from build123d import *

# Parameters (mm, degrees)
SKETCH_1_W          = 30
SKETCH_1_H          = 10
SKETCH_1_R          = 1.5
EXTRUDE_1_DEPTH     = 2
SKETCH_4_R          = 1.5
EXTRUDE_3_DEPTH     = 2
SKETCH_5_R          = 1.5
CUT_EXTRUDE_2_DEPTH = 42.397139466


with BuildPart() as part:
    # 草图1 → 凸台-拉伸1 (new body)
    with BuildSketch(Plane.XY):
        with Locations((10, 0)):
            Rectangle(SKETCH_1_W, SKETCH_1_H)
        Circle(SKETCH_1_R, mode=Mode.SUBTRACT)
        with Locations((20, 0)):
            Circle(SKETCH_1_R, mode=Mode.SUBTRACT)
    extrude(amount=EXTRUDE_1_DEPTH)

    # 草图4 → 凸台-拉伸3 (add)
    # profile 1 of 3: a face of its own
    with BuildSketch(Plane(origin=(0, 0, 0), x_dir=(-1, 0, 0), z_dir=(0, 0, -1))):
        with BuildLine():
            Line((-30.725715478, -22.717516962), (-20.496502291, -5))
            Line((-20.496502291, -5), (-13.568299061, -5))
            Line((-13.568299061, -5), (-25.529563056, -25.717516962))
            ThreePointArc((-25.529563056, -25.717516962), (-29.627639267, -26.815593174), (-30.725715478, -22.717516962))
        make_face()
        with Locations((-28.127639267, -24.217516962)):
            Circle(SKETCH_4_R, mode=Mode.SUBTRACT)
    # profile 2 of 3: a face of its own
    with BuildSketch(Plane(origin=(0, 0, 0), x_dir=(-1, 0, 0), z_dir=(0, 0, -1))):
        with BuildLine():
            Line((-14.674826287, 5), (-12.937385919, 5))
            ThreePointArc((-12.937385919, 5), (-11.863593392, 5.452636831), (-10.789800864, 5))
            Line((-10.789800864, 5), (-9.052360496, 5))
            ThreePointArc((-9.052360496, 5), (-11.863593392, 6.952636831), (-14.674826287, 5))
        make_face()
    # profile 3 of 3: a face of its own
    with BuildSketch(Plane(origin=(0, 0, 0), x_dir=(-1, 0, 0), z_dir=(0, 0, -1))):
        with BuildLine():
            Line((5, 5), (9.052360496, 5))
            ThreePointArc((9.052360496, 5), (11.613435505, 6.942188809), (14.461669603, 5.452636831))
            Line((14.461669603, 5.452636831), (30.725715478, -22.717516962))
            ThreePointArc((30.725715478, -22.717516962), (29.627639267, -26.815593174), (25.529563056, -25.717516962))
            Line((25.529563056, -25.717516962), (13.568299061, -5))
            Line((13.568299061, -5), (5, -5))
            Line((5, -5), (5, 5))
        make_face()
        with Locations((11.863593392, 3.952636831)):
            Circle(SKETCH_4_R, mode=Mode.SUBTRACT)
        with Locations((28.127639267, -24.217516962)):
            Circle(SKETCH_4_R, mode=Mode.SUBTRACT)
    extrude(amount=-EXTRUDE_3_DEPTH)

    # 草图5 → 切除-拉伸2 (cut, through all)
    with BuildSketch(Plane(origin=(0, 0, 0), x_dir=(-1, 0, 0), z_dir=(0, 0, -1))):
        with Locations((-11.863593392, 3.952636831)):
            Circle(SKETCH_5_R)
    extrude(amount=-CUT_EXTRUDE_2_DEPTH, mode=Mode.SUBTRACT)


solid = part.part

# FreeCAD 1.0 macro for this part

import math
import FreeCAD as App
import Part
import Sketcher

V = App.Vector
Q = App.Units.Quantity


def add_polygon(sketch, points):
    """Adds a closed chain of lines whose ends are joined by coincident constraints."""
    first, n = sketch.GeometryCount, len(points)
    for a, b in zip(points, points[1:] + points[:1]):
        sketch.addGeometry(Part.LineSegment(App.Vector(*a, 0), App.Vector(*b, 0)), False)
    for i in range(n):
        sketch.addConstraint(Sketcher.Constraint("Coincident", first + i, 2, first + (i + 1) % n, 1))

doc = App.newDocument("Part")
body = doc.addObject("PartDesign::Body", "Body")

# Sketch on XY plane
sketch1 = body.newObject("Sketcher::SketchObject", "Sketch")
sketch1.AttachmentSupport = (doc.getObject("XY_Plane"), [""])
sketch1.MapMode = "FlatFace"
add_polygon(sketch1, [(-5, 5), (-5, -5), (25, -5), (25, 5)])  # lines 0-3
sketch1.addGeometry(Part.Circle(V(0, 0, 0), V(0, 0, 1), 1.5), False)  # 4
sketch1.addGeometry(Part.Circle(V(20, 0, 0), V(0, 0, 1), 1.5), False)  # 5
sketch1.addConstraint([
    Sketcher.Constraint("Vertical", 0),
    Sketcher.Constraint("Horizontal", 1),
    Sketcher.Constraint("Vertical", 2),
    Sketcher.Constraint("Horizontal", 3),
    Sketcher.Constraint("Coincident", 4, 3, -1, 1),
    Sketcher.Constraint("Equal", 4, 5),
    Sketcher.Constraint("PointOnObject", 5, 3, -1),
    Sketcher.Constraint("Diameter", 4, 3.0),
    Sketcher.Constraint("DistanceX", 1, 1, 1, 2, 30.0),
    Sketcher.Constraint("DistanceY", 0, 2, 0, 1, 10.0),
    Sketcher.Constraint("DistanceX", -1, 1, 5, 3, 20.0),
    Sketcher.Constraint("DistanceX", 0, 2, -1, 1, 5.0),
    Sketcher.Constraint("DistanceY", 0, 2, -1, 1, 5.0),
])
pad1 = body.newObject("PartDesign::Pad", "Pad")
pad1.Profile = sketch1
pad1.Length = 2

# Sketch on XY plane
sketch2 = body.newObject("Sketcher::SketchObject", "Sketch001")
sketch2.AttachmentSupport = (doc.getObject("XY_Plane"), [""])
sketch2.MapMode = "FlatFace"
sketch2.addGeometry([
    Part.LineSegment(V(20.5, -5, 0), V(30.7, -22.7, 0)),  # 0
    Part.ArcOfCircle(Part.Circle(V(28.1, -24.2, 0), V(0, 0, 1), 3), math.radians(-150), math.radians(30)),  # 1
    Part.LineSegment(V(25.5, -25.7, 0), V(13.6, -5, 0)),  # 2
    Part.LineSegment(V(13.6, -5, 0), V(20.5, -5, 0)),  # 3
    Part.Circle(V(28.1, -24.2, 0), V(0, 0, 1), 1.5),  # 4
    Part.LineSegment(V(14.7, 5, 0), V(12.9, 5, 0)),  # 5
    Part.ArcOfCircle(Part.Circle(V(11.9, 4, 0), V(0, 0, 1), 1.5), math.radians(44), math.radians(136)),  # 6
    Part.LineSegment(V(10.8, 5, 0), V(9.1, 5, 0)),  # 7
    Part.ArcOfCircle(Part.Circle(V(11.9, 4, 0), V(0, 0, 1), 3), math.radians(20), math.radians(160)),  # 8
    Part.LineSegment(V(-9.1, 5, 0), V(-5, 5, 0)),  # 9
    Part.LineSegment(V(-5, 5, 0), V(-5, -5, 0)),  # 10
    Part.LineSegment(V(-5, -5, 0), V(-13.6, -5, 0)),  # 11
    Part.LineSegment(V(-13.6, -5, 0), V(-25.5, -25.7, 0)),  # 12
    Part.ArcOfCircle(Part.Circle(V(-28.1, -24.2, 0), V(0, 0, 1), 3), math.radians(150), math.radians(330)),  # 13
    Part.LineSegment(V(-30.7, -22.7, 0), V(-14.5, 5.5, 0)),  # 14
    Part.ArcOfCircle(Part.Circle(V(-11.9, 4, 0), V(0, 0, 1), 3), math.radians(20), math.radians(150)),  # 15
    Part.Circle(V(-28.1, -24.2, 0), V(0, 0, 1), 1.5),  # 16
    Part.Circle(V(-11.9, 4, 0), V(0, 0, 1), 1.5),  # 17
], False)
sketch2.addConstraint([
    Sketcher.Constraint("Tangent", 0, 2, 1, 2),
    Sketcher.Constraint("Tangent", 1, 1, 2, 1),
    Sketcher.Constraint("Coincident", 2, 2, 3, 1),
    Sketcher.Constraint("Coincident", 3, 2, 0, 1),
    Sketcher.Constraint("Coincident", 5, 2, 6, 1),
    Sketcher.Constraint("Coincident", 6, 2, 7, 1),
    Sketcher.Constraint("Coincident", 7, 2, 8, 2),
    Sketcher.Constraint("Coincident", 8, 1, 5, 1),
    Sketcher.Constraint("Coincident", 9, 2, 10, 1),
    Sketcher.Constraint("Coincident", 10, 2, 11, 1),
    Sketcher.Constraint("Coincident", 11, 2, 12, 1),
    Sketcher.Constraint("Tangent", 12, 2, 13, 2),
    Sketcher.Constraint("Tangent", 13, 1, 14, 1),
    Sketcher.Constraint("Tangent", 14, 2, 15, 2),
    Sketcher.Constraint("Coincident", 15, 1, 9, 1),
    Sketcher.Constraint("Horizontal", 3),
    Sketcher.Constraint("Horizontal", 5),
    Sketcher.Constraint("Horizontal", 7),
    Sketcher.Constraint("Horizontal", 9),
    Sketcher.Constraint("Vertical", 10),
    Sketcher.Constraint("Horizontal", 11),
    Sketcher.Constraint("Coincident", 4, 3, 1, 3),
    Sketcher.Constraint("Coincident", 8, 3, 6, 3),
    Sketcher.Constraint("Coincident", 16, 3, 13, 3),
    Sketcher.Constraint("Coincident", 17, 3, 15, 3),
    Sketcher.Constraint("Equal", 4, 6),
    Sketcher.Constraint("Equal", 1, 8),
    Sketcher.Constraint("Equal", 8, 13),
    Sketcher.Constraint("Equal", 13, 15),
    Sketcher.Constraint("Equal", 6, 16),
    Sketcher.Constraint("Equal", 16, 17),
    Sketcher.Constraint("Symmetric", 1, 3, 13, 3, -2),
    Sketcher.Constraint("Symmetric", 6, 3, 15, 3, -2),
    Sketcher.Constraint("Symmetric", 2, 2, 11, 2, -2),
    Sketcher.Constraint("Parallel", 0, 2),
    Sketcher.Constraint("Parallel", 12, 14),
    Sketcher.Constraint("Horizontal", 5, 2, 6, 2),
    Sketcher.Constraint("Horizontal", 8, 1, 9, 2),
    Sketcher.Constraint("Diameter", 4, 3.0),
    Sketcher.Constraint("Radius", 1, 3.0),
    Sketcher.Constraint("DistanceY", 10, 2, 10, 1, 10.0),
    Sketcher.Constraint("Angle", 0, Q("-60 deg")),
    Sketcher.Constraint("DistanceY", 2, 2, -1, 1, 5.0),
    Sketcher.Constraint("DistanceX", 9, 2, -1, 1, 5.0),
    Sketcher.Constraint("DistanceX", 11, 2, 11, 1, 8.568299),
    Sketcher.Constraint("DistanceX", 5, 2, 5, 1, 1.73744),
    Sketcher.Constraint("Distance", 14, 32.528092),
])
pad2 = body.newObject("PartDesign::Pad", "Pad001")
pad2.Profile = sketch2
pad2.Length = 2

# Sketch on XY plane
sketch3 = body.newObject("Sketcher::SketchObject", "Sketch002")
sketch3.AttachmentSupport = (doc.getObject("XY_Plane"), [""])
sketch3.MapMode = "FlatFace"
sketch3.addGeometry(Part.Circle(V(11.9, 4, 0), V(0, 0, 1), 1.5), False)
sketch3.addConstraint([
    Sketcher.Constraint("Diameter", 0, 3.0),
    Sketcher.Constraint("DistanceX", -1, 1, 0, 3, 11.863593),
    Sketcher.Constraint("DistanceY", -1, 1, 0, 3, 3.952637),
])
pocket1 = body.newObject("PartDesign::Pocket", "Pocket")
pocket1.Profile = sketch3
pocket1.Type = "ThroughAll"
pocket1.Reversed = True

doc.recompute()
